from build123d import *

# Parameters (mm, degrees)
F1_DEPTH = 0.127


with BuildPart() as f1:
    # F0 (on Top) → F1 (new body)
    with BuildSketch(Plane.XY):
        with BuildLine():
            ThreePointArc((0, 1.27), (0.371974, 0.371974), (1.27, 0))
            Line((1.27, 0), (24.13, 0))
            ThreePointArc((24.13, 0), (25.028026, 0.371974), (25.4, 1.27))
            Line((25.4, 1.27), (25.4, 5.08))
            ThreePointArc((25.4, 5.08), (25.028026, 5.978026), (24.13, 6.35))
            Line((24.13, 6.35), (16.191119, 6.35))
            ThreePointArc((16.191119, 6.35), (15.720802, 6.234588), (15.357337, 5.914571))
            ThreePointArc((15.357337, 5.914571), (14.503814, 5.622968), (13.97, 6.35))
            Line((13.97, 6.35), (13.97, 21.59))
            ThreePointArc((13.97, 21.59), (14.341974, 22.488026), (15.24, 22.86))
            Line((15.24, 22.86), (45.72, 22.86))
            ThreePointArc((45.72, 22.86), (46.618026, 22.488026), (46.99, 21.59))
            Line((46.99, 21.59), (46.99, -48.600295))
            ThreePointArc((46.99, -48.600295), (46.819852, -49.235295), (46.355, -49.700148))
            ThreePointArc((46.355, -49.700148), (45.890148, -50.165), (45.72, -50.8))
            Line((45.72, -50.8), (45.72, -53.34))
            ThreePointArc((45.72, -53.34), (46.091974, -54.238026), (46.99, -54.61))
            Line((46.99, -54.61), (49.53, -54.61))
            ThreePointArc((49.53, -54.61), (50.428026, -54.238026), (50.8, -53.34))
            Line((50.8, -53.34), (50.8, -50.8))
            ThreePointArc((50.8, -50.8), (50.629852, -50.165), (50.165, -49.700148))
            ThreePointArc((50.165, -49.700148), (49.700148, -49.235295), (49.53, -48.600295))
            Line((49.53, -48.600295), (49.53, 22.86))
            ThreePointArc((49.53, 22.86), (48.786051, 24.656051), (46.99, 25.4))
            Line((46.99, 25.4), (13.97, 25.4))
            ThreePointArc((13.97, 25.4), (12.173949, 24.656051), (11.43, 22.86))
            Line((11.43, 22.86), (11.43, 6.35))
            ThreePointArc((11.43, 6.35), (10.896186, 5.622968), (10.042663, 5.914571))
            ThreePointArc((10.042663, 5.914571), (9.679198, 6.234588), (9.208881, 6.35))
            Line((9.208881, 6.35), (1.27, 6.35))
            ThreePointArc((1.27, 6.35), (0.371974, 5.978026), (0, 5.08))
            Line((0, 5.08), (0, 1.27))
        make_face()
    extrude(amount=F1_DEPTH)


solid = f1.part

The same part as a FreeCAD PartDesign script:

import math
import FreeCAD as App
import Part
import Sketcher
from FreeCAD import Vector
Q = App.Units.Quantity

doc = App.newDocument("Part")
body = doc.addObject("PartDesign::Body", "Body")

sketch1 = body.newObject("Sketcher::SketchObject", "Sketch")
sketch1.AttachmentSupport = (doc.getObject("XY_Plane"), [""])
sketch1.MapMode = "FlatFace"
sketch1.addGeometry([
    Part.ArcOfCircle(Part.Circle(Vector(1.3, 1.3, 0), Vector(0, 0, 1), 1.3), math.radians(180), math.radians(270)),
    Part.LineSegment(Vector(1.3, 0, 0), Vector(24.1, 0, 0)),
    Part.ArcOfCircle(Part.Circle(Vector(24.1, 1.3, 0), Vector(0, 0, 1), 1.3), math.radians(-90), math.radians(0)),
    Part.LineSegment(Vector(25.4, 1.3, 0), Vector(25.4, 5.1, 0)),
    Part.ArcOfCircle(Part.Circle(Vector(24.1, 5.1, 0), Vector(0, 0, 1), 1.3), math.radians(0), math.radians(90)),
    Part.LineSegment(Vector(24.1, 6.3, 0), Vector(16.2, 6.3, 0)),
    Part.ArcOfCircle(Part.Circle(Vector(16.2, 5.3, 0), Vector(0, 0, 1), 1), math.radians(90), math.radians(145)),
    Part.ArcOfCircle(Part.Circle(Vector(14.7, 6.3, 0), Vector(0, 0, 1), 0.8), math.radians(180), math.radians(325)),
    Part.LineSegment(Vector(14, 6.3, 0), Vector(14, 21.6, 0)),
    Part.ArcOfCircle(Part.Circle(Vector(15.2, 21.6, 0), Vector(0, 0, 1), 1.3), math.radians(90), math.radians(180)),
    Part.LineSegment(Vector(15.2, 22.9, 0), Vector(45.7, 22.9, 0)),
    Part.ArcOfCircle(Part.Circle(Vector(45.7, 21.6, 0), Vector(0, 0, 1), 1.3), math.radians(0), math.radians(90)),
    Part.LineSegment(Vector(47, 21.6, 0), Vector(47, -48.6, 0)),
    Part.ArcOfCircle(Part.Circle(Vector(45.7, -48.6, 0), Vector(0, 0, 1), 1.3), math.radians(-60), math.radians(0)),
    Part.ArcOfCircle(Part.Circle(Vector(47, -50.8, 0), Vector(0, 0, 1), 1.3), math.radians(120), math.radians(180)),
    Part.LineSegment(Vector(45.7, -50.8, 0), Vector(45.7, -53.3, 0)),
    Part.ArcOfCircle(Part.Circle(Vector(47, -53.3, 0), Vector(0, 0, 1), 1.3), math.radians(180), math.radians(270)),
    Part.LineSegment(Vector(47, -54.6, 0), Vector(49.5, -54.6, 0)),
    Part.ArcOfCircle(Part.Circle(Vector(49.5, -53.3, 0), Vector(0, 0, 1), 1.3), math.radians(-90), math.radians(0)),
    Part.LineSegment(Vector(50.8, -53.3, 0), Vector(50.8, -50.8, 0)),
    Part.ArcOfCircle(Part.Circle(Vector(49.5, -50.8, 0), Vector(0, 0, 1), 1.3), math.radians(0), math.radians(60)),
    Part.ArcOfCircle(Part.Circle(Vector(50.8, -48.6, 0), Vector(0, 0, 1), 1.3), math.radians(-180), math.radians(-120)),
    Part.LineSegment(Vector(49.5, -48.6, 0), Vector(49.5, 22.9, 0)),
    Part.ArcOfCircle(Part.Circle(Vector(47, 22.9, 0), Vector(0, 0, 1), 2.5), math.radians(0), math.radians(90)),
    Part.LineSegment(Vector(47, 25.4, 0), Vector(14, 25.4, 0)),
    Part.ArcOfCircle(Part.Circle(Vector(14, 22.9, 0), Vector(0, 0, 1), 2.5), math.radians(90), math.radians(180)),
    Part.LineSegment(Vector(11.4, 22.9, 0), Vector(11.4, 6.3, 0)),
    Part.ArcOfCircle(Part.Circle(Vector(10.7, 6.3, 0), Vector(0, 0, 1), 0.8), math.radians(-145), math.radians(0)),
    Part.ArcOfCircle(Part.Circle(Vector(9.2, 5.3, 0), Vector(0, 0, 1), 1), math.radians(35), math.radians(90)),
    Part.LineSegment(Vector(9.2, 6.3, 0), Vector(1.3, 6.3, 0)),
    Part.ArcOfCircle(Part.Circle(Vector(1.3, 5.1, 0), Vector(0, 0, 1), 1.3), math.radians(90), math.radians(180)),
    Part.LineSegment(Vector(0, 5.1, 0), Vector(0, 1.3, 0)),
], False)
sketch1.addConstraint([
    Sketcher.Constraint("Tangent", 0, 2, 1, 1),
    Sketcher.Constraint("Tangent", 1, 2, 2, 1),
    Sketcher.Constraint("Tangent", 2, 2, 3, 1),
    Sketcher.Constraint("Tangent", 3, 2, 4, 1),
    Sketcher.Constraint("Tangent", 4, 2, 5, 1),
    Sketcher.Constraint("Coincident", 5, 2, 6, 1),
    Sketcher.Constraint("Coincident", 6, 2, 7, 2),
    Sketcher.Constraint("Tangent", 7, 1, 8, 1),
    Sketcher.Constraint("Tangent", 8, 2, 9, 2),
    Sketcher.Constraint("Tangent", 9, 1, 10, 1),
    Sketcher.Constraint("Tangent", 10, 2, 11, 2),
    Sketcher.Constraint("Tangent", 11, 1, 12, 1),
    Sketcher.Constraint("Tangent", 12, 2, 13, 2),
    Sketcher.Constraint("Tangent", 13, 1, 14, 1),
    Sketcher.Constraint("Tangent", 14, 2, 15, 1),
    Sketcher.Constraint("Tangent", 15, 2, 16, 1),
    Sketcher.Constraint("Tangent", 16, 2, 17, 1),
    Sketcher.Constraint("Tangent", 17, 2, 18, 1),
    Sketcher.Constraint("Tangent", 18, 2, 19, 1),
    Sketcher.Constraint("Tangent", 19, 2, 20, 1),
    Sketcher.Constraint("Tangent", 20, 2, 21, 2),
    Sketcher.Constraint("Tangent", 21, 1, 22, 1),
    Sketcher.Constraint("Tangent", 22, 2, 23, 1),
    Sketcher.Constraint("Tangent", 23, 2, 24, 1),
    Sketcher.Constraint("Tangent", 24, 2, 25, 1),
    Sketcher.Constraint("Tangent", 25, 2, 26, 1),
    Sketcher.Constraint("Tangent", 26, 2, 27, 2),
    Sketcher.Constraint("Coincident", 27, 1, 28, 1),
    Sketcher.Constraint("Coincident", 28, 2, 29, 1),
    Sketcher.Constraint("Tangent", 29, 2, 30, 1),
    Sketcher.Constraint("Tangent", 30, 2, 31, 1),
    Sketcher.Constraint("Tangent", 31, 2, 0, 1),
    Sketcher.Constraint("Horizontal", 1),
    Sketcher.Constraint("Vertical", 3),
    Sketcher.Constraint("Horizontal", 5),
    Sketcher.Constraint("Vertical", 8),
    Sketcher.Constraint("Horizontal", 10),
    Sketcher.Constraint("Vertical", 12),
    Sketcher.Constraint("Vertical", 15),
    Sketcher.Constraint("Horizontal", 17),
    Sketcher.Constraint("Vertical", 19),
    Sketcher.Constraint("Vertical", 22),
    Sketcher.Constraint("Horizontal", 24),
    Sketcher.Constraint("Vertical", 26),
    Sketcher.Constraint("Horizontal", 29),
    Sketcher.Constraint("Vertical", 31),
    Sketcher.Constraint("Equal", 0, 2),
    Sketcher.Constraint("Equal", 2, 4),
    Sketcher.Constraint("Equal", 4, 9),
    Sketcher.Constraint("Equal", 9, 11),
    Sketcher.Constraint("Equal", 11, 14),
    Sketcher.Constraint("Equal", 14, 16),
    Sketcher.Constraint("Equal", 16, 18),
    Sketcher.Constraint("Equal", 18, 20),
    Sketcher.Constraint("Equal", 13, 21),
    Sketcher.Constraint("Equal", 23, 25),
    Sketcher.Constraint("Equal", 7, 27),
    Sketcher.Constraint("Equal", 6, 28),
    Sketcher.Constraint("Equal", 20, 30),
    Sketcher.Constraint("PointOnObject", 0, 2, -1),
    Sketcher.Constraint("PointOnObject", 30, 2, -2),
    Sketcher.Constraint("Horizontal", 14, 3, 20, 3),
    Sketcher.Constraint("Horizontal", 13, 3, 21, 3),
    Sketcher.Constraint("Horizontal", 7, 3, 27, 3),
    Sketcher.Constraint("Horizontal", 6, 3, 28, 3),
    Sketcher.Constraint("Horizontal", 27, 3, 4, 2),
    Sketcher.Constraint("Horizontal", 25, 3, 9, 1),
    Sketcher.Constraint("Horizontal", 6, 2, 27, 1),
    Sketcher.Constraint("Vertical", 16, 3, 23, 3),
    Sketcher.Constraint("Vertical", 25, 3, 7, 1),
    Sketcher.Constraint("Vertical", 23, 3, 11, 1),
    Sketcher.Constraint("Equal", 5, 29),
    Sketcher.Constraint("Equal", 17, 15),
    Sketcher.Constraint("Radius", 23, Q("0.1 in")),
    Sketcher.Constraint("Radius", 0, Q("0.0499999 in")),
    Sketcher.Constraint("Radius", 7, Q("0.03 in")),
    Sketcher.Constraint("Radius", 13, Q("0.0500002 in")),
    Sketcher.Constraint("DistanceX", 1, 1, 1, 2, Q("0.9 in")),
    Sketcher.Constraint("DistanceX", 10, 1, 10, 2, Q("1.2 in")),
    Sketcher.Constraint("DistanceY", 8, 1, 8, 2, Q("0.6 in")),
    Sketcher.Constraint("DistanceY", 14, 3, -1, 1, Q("2 in")),
    Sketcher.Constraint("DistanceX", -1, 1, 21, 3, Q("2.0000002 in")),
    Sketcher.Constraint("DistanceY", -1, 1, 23, 2, Q("1 in")),
    Sketcher.Constraint("DistanceY", 4, 3, 6, 3, Q("0.0100001 in")),
    Sketcher.Constraint("DistanceX", 5, 2, 5, 1, Q("7.938881 mm")),
    Sketcher.Constraint("DistanceY", -1, 1, 6, 2, Q("5.914571 mm")),
])
pad1 = body.newObject("PartDesign::Pad", "Pad")
pad1.Profile = sketch1
pad1.Length = Q("0.005 in")

doc.recompute()
